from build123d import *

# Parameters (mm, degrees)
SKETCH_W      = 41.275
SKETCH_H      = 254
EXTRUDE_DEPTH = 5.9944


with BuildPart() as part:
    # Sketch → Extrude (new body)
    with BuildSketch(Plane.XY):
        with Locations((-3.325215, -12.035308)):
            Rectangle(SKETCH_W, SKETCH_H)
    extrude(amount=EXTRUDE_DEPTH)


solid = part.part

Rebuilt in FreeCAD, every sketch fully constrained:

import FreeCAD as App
import Part
import Sketcher
Q = App.Units.Quantity

doc = App.newDocument("Part")
body = doc.addObject("PartDesign::Body", "Body")

# Sketch on XY plane
sketch1 = body.newObject("Sketcher::SketchObject", "Sketch")
sketch1.AttachmentSupport = (doc.getObject("XY_Plane"), [""])
sketch1.MapMode = "FlatFace"
sketch1.addGeometry(Part.LineSegment(App.Vector(-23.962715, 114.964692, 0), App.Vector(-23.962715, -139.035308, 0)), False)
sketch1.addGeometry(Part.LineSegment(App.Vector(-23.962715, -139.035308, 0), App.Vector(17.312285, -139.035308, 0)), False)
sketch1.addGeometry(Part.LineSegment(App.Vector(17.312285, -139.035308, 0), App.Vector(17.312285, 114.964692, 0)), False)
sketch1.addGeometry(Part.LineSegment(App.Vector(17.312285, 114.964692, 0), App.Vector(-23.962715, 114.964692, 0)), False)
sketch1.addConstraint(Sketcher.Constraint("Coincident", 0, 2, 1, 1))
sketch1.addConstraint(Sketcher.Constraint("Coincident", 1, 2, 2, 1))
sketch1.addConstraint(Sketcher.Constraint("Coincident", 2, 2, 3, 1))
sketch1.addConstraint(Sketcher.Constraint("Coincident", 3, 2, 0, 1))
sketch1.addConstraint(Sketcher.Constraint("Vertical", 0))
sketch1.addConstraint(Sketcher.Constraint("Horizontal", 1))
sketch1.addConstraint(Sketcher.Constraint("Vertical", 2))
sketch1.addConstraint(Sketcher.Constraint("Horizontal", 3))
sketch1.addConstraint(Sketcher.Constraint("DistanceY", 0, 2, 0, 1, Q("10 in")))
sketch1.addConstraint(Sketcher.Constraint("DistanceX", 1, 1, 1, 2, Q("1.625 in")))
sketch1.addConstraint(Sketcher.Constraint("DistanceY", -1, 1, 2, 2, Q("114.964692 mm")))
sketch1.addConstraint(Sketcher.Constraint("DistanceX", 0, 2, -1, 1, Q("23.962715 mm")))
pad1 = body.newObject("PartDesign::Pad", "Pad")
pad1.Profile = sketch1
pad1.Length = Q("0.236 in")

doc.recompute()
